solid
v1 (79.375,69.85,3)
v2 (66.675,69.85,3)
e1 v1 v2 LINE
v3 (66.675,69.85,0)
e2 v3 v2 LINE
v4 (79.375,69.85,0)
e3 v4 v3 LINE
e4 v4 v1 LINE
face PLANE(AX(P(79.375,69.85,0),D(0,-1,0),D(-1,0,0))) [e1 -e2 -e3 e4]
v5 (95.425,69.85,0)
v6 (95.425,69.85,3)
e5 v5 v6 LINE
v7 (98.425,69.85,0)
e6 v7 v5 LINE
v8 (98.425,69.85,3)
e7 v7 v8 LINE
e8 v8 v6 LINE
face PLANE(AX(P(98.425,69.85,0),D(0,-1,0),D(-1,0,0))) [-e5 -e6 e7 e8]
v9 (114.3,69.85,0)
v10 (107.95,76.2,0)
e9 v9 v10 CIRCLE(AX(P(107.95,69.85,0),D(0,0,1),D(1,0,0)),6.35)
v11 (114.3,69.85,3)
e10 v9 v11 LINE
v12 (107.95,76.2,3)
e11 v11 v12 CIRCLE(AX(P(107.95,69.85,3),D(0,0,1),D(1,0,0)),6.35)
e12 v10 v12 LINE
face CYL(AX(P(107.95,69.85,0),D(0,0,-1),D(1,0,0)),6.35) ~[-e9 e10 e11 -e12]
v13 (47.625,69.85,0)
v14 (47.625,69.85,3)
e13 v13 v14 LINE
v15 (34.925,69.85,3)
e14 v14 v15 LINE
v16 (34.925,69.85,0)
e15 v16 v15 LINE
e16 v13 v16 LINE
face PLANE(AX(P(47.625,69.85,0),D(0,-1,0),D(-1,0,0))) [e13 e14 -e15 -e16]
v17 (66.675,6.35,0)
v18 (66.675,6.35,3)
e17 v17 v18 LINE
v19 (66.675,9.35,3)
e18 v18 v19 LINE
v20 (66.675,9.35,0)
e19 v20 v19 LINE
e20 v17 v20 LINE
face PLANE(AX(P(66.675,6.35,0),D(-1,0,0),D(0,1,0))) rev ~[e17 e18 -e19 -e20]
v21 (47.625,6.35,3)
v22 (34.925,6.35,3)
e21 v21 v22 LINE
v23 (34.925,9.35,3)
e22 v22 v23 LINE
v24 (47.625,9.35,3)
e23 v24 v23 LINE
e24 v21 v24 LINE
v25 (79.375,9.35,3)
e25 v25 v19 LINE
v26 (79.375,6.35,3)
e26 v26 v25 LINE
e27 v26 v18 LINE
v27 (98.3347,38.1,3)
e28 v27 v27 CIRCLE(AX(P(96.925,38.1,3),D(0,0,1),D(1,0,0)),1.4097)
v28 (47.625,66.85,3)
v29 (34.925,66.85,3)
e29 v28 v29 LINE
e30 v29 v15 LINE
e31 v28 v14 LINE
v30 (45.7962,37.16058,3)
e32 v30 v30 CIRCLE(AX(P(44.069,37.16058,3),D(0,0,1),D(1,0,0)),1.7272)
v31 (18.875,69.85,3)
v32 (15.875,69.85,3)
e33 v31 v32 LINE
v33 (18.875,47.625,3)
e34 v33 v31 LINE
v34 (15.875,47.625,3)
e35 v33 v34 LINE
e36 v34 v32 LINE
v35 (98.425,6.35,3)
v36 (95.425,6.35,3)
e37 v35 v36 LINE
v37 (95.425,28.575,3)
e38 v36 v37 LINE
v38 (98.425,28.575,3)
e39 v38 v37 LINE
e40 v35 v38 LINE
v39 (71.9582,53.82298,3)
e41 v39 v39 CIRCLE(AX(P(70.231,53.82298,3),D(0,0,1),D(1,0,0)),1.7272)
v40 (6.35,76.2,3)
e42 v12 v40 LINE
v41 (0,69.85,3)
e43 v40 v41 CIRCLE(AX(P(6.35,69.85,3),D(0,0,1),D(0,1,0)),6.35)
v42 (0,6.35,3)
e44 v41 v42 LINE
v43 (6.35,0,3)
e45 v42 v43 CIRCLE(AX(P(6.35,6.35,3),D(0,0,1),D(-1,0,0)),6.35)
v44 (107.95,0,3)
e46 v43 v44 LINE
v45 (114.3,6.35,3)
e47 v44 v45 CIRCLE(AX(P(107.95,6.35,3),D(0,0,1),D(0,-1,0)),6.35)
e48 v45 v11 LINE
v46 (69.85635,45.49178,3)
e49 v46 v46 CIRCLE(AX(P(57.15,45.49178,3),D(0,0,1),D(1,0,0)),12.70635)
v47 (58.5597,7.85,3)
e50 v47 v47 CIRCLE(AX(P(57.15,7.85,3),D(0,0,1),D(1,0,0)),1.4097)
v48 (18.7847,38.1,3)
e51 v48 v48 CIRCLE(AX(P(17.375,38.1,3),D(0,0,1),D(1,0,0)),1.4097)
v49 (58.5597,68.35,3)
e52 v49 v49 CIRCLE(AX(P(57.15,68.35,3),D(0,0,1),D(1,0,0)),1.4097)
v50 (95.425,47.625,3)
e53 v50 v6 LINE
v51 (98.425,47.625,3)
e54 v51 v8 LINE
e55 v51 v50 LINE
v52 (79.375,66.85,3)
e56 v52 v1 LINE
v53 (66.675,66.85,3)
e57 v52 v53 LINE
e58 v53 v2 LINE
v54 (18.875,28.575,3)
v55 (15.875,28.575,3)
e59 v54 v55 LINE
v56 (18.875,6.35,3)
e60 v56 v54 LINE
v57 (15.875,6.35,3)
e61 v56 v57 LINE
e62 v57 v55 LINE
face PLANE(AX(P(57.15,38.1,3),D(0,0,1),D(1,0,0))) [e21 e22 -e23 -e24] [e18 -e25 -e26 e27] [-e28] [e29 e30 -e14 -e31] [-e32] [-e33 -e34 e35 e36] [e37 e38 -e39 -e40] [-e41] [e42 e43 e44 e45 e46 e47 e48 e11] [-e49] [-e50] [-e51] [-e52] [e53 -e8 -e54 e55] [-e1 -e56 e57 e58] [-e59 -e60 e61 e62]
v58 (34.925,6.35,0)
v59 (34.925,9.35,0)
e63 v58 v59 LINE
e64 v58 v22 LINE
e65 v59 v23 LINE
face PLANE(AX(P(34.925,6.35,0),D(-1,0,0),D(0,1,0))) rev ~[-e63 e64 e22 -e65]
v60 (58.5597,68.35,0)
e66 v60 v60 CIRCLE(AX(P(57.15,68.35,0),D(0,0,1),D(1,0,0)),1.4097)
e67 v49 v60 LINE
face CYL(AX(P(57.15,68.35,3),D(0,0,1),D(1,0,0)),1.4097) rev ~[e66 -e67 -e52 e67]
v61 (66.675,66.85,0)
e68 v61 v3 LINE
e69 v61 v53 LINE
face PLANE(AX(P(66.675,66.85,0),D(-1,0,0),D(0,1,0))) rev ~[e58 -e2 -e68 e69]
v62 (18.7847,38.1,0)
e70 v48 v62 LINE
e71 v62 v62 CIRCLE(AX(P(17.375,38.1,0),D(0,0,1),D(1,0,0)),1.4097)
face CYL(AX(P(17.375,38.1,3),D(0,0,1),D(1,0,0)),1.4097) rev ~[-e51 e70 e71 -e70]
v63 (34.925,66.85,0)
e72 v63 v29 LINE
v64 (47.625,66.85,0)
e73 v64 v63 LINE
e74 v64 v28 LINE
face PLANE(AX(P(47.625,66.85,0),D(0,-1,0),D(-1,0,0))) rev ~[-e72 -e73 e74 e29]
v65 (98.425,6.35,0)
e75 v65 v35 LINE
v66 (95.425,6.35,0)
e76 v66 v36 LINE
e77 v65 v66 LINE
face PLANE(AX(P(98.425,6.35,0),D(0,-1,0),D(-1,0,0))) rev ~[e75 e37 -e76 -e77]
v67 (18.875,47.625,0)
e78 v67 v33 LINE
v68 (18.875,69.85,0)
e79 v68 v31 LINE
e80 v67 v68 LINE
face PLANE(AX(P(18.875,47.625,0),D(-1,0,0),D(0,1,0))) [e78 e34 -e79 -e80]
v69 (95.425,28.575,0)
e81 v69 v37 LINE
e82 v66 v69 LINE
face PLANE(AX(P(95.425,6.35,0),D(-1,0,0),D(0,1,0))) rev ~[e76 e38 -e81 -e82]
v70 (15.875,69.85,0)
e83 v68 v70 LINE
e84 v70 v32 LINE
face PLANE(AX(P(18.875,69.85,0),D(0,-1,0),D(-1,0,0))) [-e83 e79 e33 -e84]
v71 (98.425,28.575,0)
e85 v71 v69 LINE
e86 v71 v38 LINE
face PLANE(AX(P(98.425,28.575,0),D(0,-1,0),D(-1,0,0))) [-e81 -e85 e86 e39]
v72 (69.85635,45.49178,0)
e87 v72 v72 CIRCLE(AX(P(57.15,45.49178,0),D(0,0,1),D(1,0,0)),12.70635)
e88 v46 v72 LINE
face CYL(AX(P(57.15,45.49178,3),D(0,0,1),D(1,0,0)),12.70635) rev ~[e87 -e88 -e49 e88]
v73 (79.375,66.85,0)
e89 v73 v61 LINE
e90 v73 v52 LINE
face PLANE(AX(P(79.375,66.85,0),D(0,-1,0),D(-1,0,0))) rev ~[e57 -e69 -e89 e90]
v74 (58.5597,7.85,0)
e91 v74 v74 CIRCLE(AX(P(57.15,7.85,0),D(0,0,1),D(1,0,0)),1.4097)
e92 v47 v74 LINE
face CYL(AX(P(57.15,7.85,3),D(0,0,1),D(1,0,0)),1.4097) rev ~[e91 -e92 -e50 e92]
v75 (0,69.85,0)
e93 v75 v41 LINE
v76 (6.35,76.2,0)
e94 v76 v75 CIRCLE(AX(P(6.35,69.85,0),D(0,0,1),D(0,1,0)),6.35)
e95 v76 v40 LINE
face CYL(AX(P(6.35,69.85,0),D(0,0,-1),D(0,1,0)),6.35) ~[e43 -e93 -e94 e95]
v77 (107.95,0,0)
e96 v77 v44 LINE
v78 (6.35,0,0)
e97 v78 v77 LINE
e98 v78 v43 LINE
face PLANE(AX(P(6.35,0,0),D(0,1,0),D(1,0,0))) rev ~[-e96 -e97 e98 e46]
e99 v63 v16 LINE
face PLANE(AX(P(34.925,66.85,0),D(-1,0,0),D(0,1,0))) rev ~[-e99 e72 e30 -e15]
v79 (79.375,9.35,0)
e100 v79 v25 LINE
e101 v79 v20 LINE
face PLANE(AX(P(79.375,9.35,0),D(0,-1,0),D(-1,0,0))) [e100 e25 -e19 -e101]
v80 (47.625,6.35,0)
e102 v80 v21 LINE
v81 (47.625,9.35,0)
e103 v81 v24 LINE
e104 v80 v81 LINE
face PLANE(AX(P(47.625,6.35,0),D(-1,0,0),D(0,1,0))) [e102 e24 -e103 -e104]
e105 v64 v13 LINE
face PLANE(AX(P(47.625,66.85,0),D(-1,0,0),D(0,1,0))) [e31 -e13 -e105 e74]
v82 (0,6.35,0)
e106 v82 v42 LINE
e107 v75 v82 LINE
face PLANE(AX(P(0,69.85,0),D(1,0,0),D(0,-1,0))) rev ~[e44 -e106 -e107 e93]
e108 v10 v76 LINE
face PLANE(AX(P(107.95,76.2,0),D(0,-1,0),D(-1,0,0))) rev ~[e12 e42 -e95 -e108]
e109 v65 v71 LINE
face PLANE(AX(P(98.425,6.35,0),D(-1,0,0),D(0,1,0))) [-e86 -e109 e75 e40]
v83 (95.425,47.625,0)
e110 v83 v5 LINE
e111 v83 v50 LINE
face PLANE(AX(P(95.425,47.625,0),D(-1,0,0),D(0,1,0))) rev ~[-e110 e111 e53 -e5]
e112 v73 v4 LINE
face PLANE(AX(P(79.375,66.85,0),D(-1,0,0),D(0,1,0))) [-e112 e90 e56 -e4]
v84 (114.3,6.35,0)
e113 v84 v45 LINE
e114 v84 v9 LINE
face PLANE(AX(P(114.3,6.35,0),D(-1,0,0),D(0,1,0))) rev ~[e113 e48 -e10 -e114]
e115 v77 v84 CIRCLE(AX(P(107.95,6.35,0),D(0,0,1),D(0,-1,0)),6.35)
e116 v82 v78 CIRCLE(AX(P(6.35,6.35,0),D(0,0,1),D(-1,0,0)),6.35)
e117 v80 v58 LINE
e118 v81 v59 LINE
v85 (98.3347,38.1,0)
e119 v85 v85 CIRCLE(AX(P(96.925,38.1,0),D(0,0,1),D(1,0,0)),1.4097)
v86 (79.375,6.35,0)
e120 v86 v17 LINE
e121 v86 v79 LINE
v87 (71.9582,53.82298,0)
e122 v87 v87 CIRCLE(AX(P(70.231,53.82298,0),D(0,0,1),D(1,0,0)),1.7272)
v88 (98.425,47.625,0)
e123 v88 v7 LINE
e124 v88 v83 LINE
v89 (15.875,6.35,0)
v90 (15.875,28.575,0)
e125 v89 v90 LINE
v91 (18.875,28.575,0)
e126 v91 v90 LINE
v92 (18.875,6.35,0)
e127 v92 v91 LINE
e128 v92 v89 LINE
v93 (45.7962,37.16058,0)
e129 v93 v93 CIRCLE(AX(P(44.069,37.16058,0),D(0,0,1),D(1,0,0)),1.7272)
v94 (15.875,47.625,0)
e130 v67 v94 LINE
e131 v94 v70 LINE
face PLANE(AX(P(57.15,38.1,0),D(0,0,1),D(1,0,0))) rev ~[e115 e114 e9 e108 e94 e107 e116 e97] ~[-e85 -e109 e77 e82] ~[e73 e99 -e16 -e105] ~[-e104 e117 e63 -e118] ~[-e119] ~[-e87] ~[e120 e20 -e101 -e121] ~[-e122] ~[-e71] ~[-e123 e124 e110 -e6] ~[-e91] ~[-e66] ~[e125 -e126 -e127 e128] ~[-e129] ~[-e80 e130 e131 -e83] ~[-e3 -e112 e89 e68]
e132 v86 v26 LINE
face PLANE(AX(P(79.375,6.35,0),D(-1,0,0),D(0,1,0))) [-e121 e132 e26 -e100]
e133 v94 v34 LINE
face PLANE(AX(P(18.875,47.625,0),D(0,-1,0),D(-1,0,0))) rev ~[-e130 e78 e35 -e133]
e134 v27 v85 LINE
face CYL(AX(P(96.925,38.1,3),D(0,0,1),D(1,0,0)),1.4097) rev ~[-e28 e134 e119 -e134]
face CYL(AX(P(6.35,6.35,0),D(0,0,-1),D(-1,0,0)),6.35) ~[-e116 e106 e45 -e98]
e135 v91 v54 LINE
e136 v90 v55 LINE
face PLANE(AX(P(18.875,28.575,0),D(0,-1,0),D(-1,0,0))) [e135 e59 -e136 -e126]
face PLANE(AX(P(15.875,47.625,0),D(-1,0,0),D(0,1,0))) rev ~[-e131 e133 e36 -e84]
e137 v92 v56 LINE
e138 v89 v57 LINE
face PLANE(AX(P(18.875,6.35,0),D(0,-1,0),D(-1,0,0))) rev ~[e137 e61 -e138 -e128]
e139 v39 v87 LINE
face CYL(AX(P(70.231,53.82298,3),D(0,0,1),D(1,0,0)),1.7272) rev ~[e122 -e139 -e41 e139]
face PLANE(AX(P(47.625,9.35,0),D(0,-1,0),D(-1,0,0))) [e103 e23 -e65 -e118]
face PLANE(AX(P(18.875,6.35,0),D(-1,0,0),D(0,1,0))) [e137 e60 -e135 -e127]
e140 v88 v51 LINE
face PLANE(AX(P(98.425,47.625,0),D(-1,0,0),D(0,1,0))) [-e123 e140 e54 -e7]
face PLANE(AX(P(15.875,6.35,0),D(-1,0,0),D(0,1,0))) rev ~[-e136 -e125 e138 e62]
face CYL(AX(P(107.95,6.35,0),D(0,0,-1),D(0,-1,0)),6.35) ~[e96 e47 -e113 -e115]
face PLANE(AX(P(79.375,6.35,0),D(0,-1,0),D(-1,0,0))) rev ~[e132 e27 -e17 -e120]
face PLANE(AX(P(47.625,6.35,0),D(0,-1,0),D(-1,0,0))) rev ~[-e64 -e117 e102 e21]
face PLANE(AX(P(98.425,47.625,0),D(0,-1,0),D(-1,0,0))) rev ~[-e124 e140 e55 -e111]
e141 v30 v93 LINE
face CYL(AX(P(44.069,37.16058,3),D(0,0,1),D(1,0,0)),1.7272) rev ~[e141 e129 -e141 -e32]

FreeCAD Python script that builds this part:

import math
import FreeCAD as App
import Part
import Sketcher
from FreeCAD import Vector
Q = App.Units.Quantity

doc = App.newDocument("Part")
body = doc.addObject("PartDesign::Body", "Body")

# Sketch on XY plane
sketch1 = body.newObject("Sketcher::SketchObject", "Sketch")
sketch1.AttachmentSupport = (doc.getObject("XY_Plane"), [""])
sketch1.MapMode = "FlatFace"
sketch1.addGeometry(Part.LineSegment(Vector(6, 0, 0), Vector(108, 0, 0)), False)
sketch1.addGeometry(Part.ArcOfCircle(Part.Circle(Vector(108, 6, 0), Vector(0, 0, 1), 6), math.radians(-90), math.radians(0)), False)
sketch1.addGeometry(Part.LineSegment(Vector(114, 6, 0), Vector(114, 70, 0)), False)
sketch1.addGeometry(Part.ArcOfCircle(Part.Circle(Vector(108, 70, 0), Vector(0, 0, 1), 6), math.radians(0), math.radians(90)), False)
sketch1.addGeometry(Part.LineSegment(Vector(108, 76, 0), Vector(6, 76, 0)), False)
sketch1.addGeometry(Part.ArcOfCircle(Part.Circle(Vector(6, 70, 0), Vector(0, 0, 1), 6), math.radians(90), math.radians(180)), False)
sketch1.addGeometry(Part.LineSegment(Vector(0, 70, 0), Vector(0, 6, 0)), False)
sketch1.addGeometry(Part.ArcOfCircle(Part.Circle(Vector(6, 6, 0), Vector(0, 0, 1), 6), math.radians(180), math.radians(270)), False)
sketch1.addConstraint(Sketcher.Constraint("Tangent", 0, 2, 1, 1))
sketch1.addConstraint(Sketcher.Constraint("Tangent", 1, 2, 2, 1))
sketch1.addConstraint(Sketcher.Constraint("Tangent", 2, 2, 3, 1))
sketch1.addConstraint(Sketcher.Constraint("Tangent", 3, 2, 4, 1))
sketch1.addConstraint(Sketcher.Constraint("Tangent", 4, 2, 5, 1))
sketch1.addConstraint(Sketcher.Constraint("Tangent", 5, 2, 6, 1))
sketch1.addConstraint(Sketcher.Constraint("Tangent", 6, 2, 7, 1))
sketch1.addConstraint(Sketcher.Constraint("Tangent", 7, 2, 0, 1))
sketch1.addConstraint(Sketcher.Constraint("Horizontal", 0))
sketch1.addConstraint(Sketcher.Constraint("Vertical", 2))
sketch1.addConstraint(Sketcher.Constraint("Horizontal", 4))
sketch1.addConstraint(Sketcher.Constraint("Vertical", 6))
sketch1.addConstraint(Sketcher.Constraint("Equal", 1, 3))
sketch1.addConstraint(Sketcher.Constraint("Equal", 3, 5))
sketch1.addConstraint(Sketcher.Constraint("Equal", 5, 7))
sketch1.addConstraint(Sketcher.Constraint("PointOnObject", 0, 2, -1))
sketch1.addConstraint(Sketcher.Constraint("PointOnObject", 5, 2, -2))
sketch1.addConstraint(Sketcher.Constraint("DistanceX", 0, 1, 0, 2, Q("4 in")))
sketch1.addConstraint(Sketcher.Constraint("Radius", 1, Q("0.25 in")))
sketch1.addConstraint(Sketcher.Constraint("DistanceY", 2, 1, 2, 2, Q("2.5 in")))
pad1 = body.newObject("PartDesign::Pad", "Pad")
pad1.Profile = sketch1
pad1.Length = 3

# Sketch on XY plane
sketch2 = body.newObject("Sketcher::SketchObject", "Sketch001")
sketch2.AttachmentSupport = (doc.getObject("XY_Plane"), [""])
sketch2.MapMode = "FlatFace"
sketch2.addGeometry(Part.LineSegment(Vector(79.4, 69.8, 0), Vector(79.4, 66.8, 0)), False)
sketch2.addGeometry(Part.LineSegment(Vector(79.4, 66.8, 0), Vector(66.7, 66.8, 0)), False)
sketch2.addGeometry(Part.LineSegment(Vector(66.7, 66.8, 0), Vector(66.7, 69.8, 0)), False)
sketch2.addGeometry(Part.LineSegment(Vector(66.7, 69.8, 0), Vector(79.4, 69.8, 0)), False)
sketch2.addConstraint(Sketcher.Constraint("Coincident", 0, 2, 1, 1))
sketch2.addConstraint(Sketcher.Constraint("Coincident", 1, 2, 2, 1))
sketch2.addConstraint(Sketcher.Constraint("Coincident", 2, 2, 3, 1))
sketch2.addConstraint(Sketcher.Constraint("Coincident", 3, 2, 0, 1))
sketch2.addConstraint(Sketcher.Constraint("Vertical", 0))
sketch2.addConstraint(Sketcher.Constraint("Horizontal", 1))
sketch2.addConstraint(Sketcher.Constraint("Vertical", 2))
sketch2.addConstraint(Sketcher.Constraint("Horizontal", 3))
sketch2.addConstraint(Sketcher.Constraint("DistanceX", 1, 2, 1, 1, Q("0.5 in")))
sketch2.addConstraint(Sketcher.Constraint("DistanceY", -1, 1, 2, 2, Q("2.75 in")))
sketch2.addConstraint(Sketcher.Constraint("DistanceX", -1, 1, 0, 2, Q("3.125 in")))
sketch2.addConstraint(Sketcher.Constraint("DistanceY", 0, 2, 0, 1, Q("3 mm")))
pocket1 = body.newObject("PartDesign::Pocket", "Pocket")
pocket1.Profile = sketch2
pocket1.Type = "UpToFirst"
pocket1.Reversed = True

# Sketch on XY plane
sketch3 = body.newObject("Sketcher::SketchObject", "Sketch002")
sketch3.AttachmentSupport = (doc.getObject("XY_Plane"), [""])
sketch3.MapMode = "FlatFace"
sketch3.addGeometry(Part.LineSegment(Vector(47.6, 69.8, 0), Vector(47.6, 66.8, 0)), False)
sketch3.addGeometry(Part.LineSegment(Vector(47.6, 66.8, 0), Vector(34.9, 66.8, 0)), False)
sketch3.addGeometry(Part.LineSegment(Vector(34.9, 66.8, 0), Vector(34.9, 69.8, 0)), False)
sketch3.addGeometry(Part.LineSegment(Vector(34.9, 69.8, 0), Vector(47.6, 69.8, 0)), False)
sketch3.addConstraint(Sketcher.Constraint("Coincident", 0, 2, 1, 1))
sketch3.addConstraint(Sketcher.Constraint("Coincident", 1, 2, 2, 1))
sketch3.addConstraint(Sketcher.Constraint("Coincident", 2, 2, 3, 1))
sketch3.addConstraint(Sketcher.Constraint("Coincident", 3, 2, 0, 1))
sketch3.addConstraint(Sketcher.Constraint("Vertical", 0))
sketch3.addConstraint(Sketcher.Constraint("Horizontal", 1))
sketch3.addConstraint(Sketcher.Constraint("Vertical", 2))
sketch3.addConstraint(Sketcher.Constraint("Horizontal", 3))
sketch3.addConstraint(Sketcher.Constraint("DistanceX", 1, 2, 1, 1, Q("0.5 in")))
sketch3.addConstraint(Sketcher.Constraint("DistanceY", -1, 1, 2, 2, Q("2.75 in")))
sketch3.addConstraint(Sketcher.Constraint("DistanceX", -1, 1, 0, 2, Q("1.875 in")))
sketch3.addConstraint(Sketcher.Constraint("DistanceY", 0, 2, 0, 1, Q("3 mm")))
pocket2 = body.newObject("PartDesign::Pocket", "Pocket001")
pocket2.Profile = sketch3
pocket2.Type = "UpToFirst"
pocket2.Reversed = True

# Sketch on XY plane
sketch4 = body.newObject("Sketcher::SketchObject", "Sketch003")
sketch4.AttachmentSupport = (doc.getObject("XY_Plane"), [""])
sketch4.MapMode = "FlatFace"
sketch4.addGeometry(Part.LineSegment(Vector(18.9, 69.8, 0), Vector(18.9, 47.6, 0)), False)
sketch4.addGeometry(Part.LineSegment(Vector(18.9, 47.6, 0), Vector(15.9, 47.6, 0)), False)
sketch4.addGeometry(Part.LineSegment(Vector(15.9, 47.6, 0), Vector(15.9, 69.8, 0)), False)
sketch4.addGeometry(Part.LineSegment(Vector(15.9, 69.8, 0), Vector(18.9, 69.8, 0)), False)
sketch4.addConstraint(Sketcher.Constraint("Coincident", 0, 2, 1, 1))
sketch4.addConstraint(Sketcher.Constraint("Coincident", 1, 2, 2, 1))
sketch4.addConstraint(Sketcher.Constraint("Coincident", 2, 2, 3, 1))
sketch4.addConstraint(Sketcher.Constraint("Coincident", 3, 2, 0, 1))
sketch4.addConstraint(Sketcher.Constraint("Vertical", 0))
sketch4.addConstraint(Sketcher.Constraint("Horizontal", 1))
sketch4.addConstraint(Sketcher.Constraint("Vertical", 2))
sketch4.addConstraint(Sketcher.Constraint("Horizontal", 3))
sketch4.addConstraint(Sketcher.Constraint("DistanceY", 0, 2, 0, 1, Q("0.875 in")))
sketch4.addConstraint(Sketcher.Constraint("DistanceY", -1, 1, 2, 2, Q("2.75 in")))
sketch4.addConstraint(Sketcher.Constraint("DistanceX", -1, 1, 1, 2, Q("0.625 in")))
sketch4.addConstraint(Sketcher.Constraint("DistanceX", 1, 2, 1, 1, Q("3 mm")))
pocket3 = body.newObject("PartDesign::Pocket", "Pocket002")
pocket3.Profile = sketch4
pocket3.Type = "UpToFirst"
pocket3.Reversed = True

# Sketch on XY plane
sketch5 = body.newObject("Sketcher::SketchObject", "Sketch004")
sketch5.AttachmentSupport = (doc.getObject("XY_Plane"), [""])
sketch5.MapMode = "FlatFace"
sketch5.addGeometry(Part.LineSegment(Vector(18.9, 28.6, 0), Vector(18.9, 6.3, 0)), False)
sketch5.addGeometry(Part.LineSegment(Vector(18.9, 6.3, 0), Vector(15.9, 6.3, 0)), False)
sketch5.addGeometry(Part.LineSegment(Vector(15.9, 6.3, 0), Vector(15.9, 28.6, 0)), False)
sketch5.addGeometry(Part.LineSegment(Vector(15.9, 28.6, 0), Vector(18.9, 28.6, 0)), False)
sketch5.addConstraint(Sketcher.Constraint("Coincident", 0, 2, 1, 1))
sketch5.addConstraint(Sketcher.Constraint("Coincident", 1, 2, 2, 1))
sketch5.addConstraint(Sketcher.Constraint("Coincident", 2, 2, 3, 1))
sketch5.addConstraint(Sketcher.Constraint("Coincident", 3, 2, 0, 1))
sketch5.addConstraint(Sketcher.Constraint("Vertical", 0))
sketch5.addConstraint(Sketcher.Constraint("Horizontal", 1))
sketch5.addConstraint(Sketcher.Constraint("Vertical", 2))
sketch5.addConstraint(Sketcher.Constraint("Horizontal", 3))
sketch5.addConstraint(Sketcher.Constraint("DistanceY", 0, 2, 0, 1, Q("0.875 in")))
sketch5.addConstraint(Sketcher.Constraint("DistanceY", -1, 1, 0, 2, Q("0.25 in")))
sketch5.addConstraint(Sketcher.Constraint("DistanceX", -1, 1, 1, 2, Q("0.625 in")))
sketch5.addConstraint(Sketcher.Constraint("DistanceX", 1, 2, 1, 1, Q("3 mm")))
pocket4 = body.newObject("PartDesign::Pocket", "Pocket003")
pocket4.Profile = sketch5
pocket4.Type = "UpToFirst"
pocket4.Reversed = True

# Sketch on XY plane
sketch6 = body.newObject("Sketcher::SketchObject", "Sketch005")
sketch6.AttachmentSupport = (doc.getObject("XY_Plane"), [""])
sketch6.MapMode = "FlatFace"
sketch6.addGeometry(Part.LineSegment(Vector(47.6, 9.3, 0), Vector(47.6, 6.3, 0)), False)
sketch6.addGeometry(Part.LineSegment(Vector(47.6, 6.3, 0), Vector(34.9, 6.3, 0)), False)
sketch6.addGeometry(Part.LineSegment(Vector(34.9, 6.3, 0), Vector(34.9, 9.3, 0)), False)
sketch6.addGeometry(Part.LineSegment(Vector(34.9, 9.3, 0), Vector(47.6, 9.3, 0)), False)
sketch6.addConstraint(Sketcher.Constraint("Coincident", 0, 2, 1, 1))
sketch6.addConstraint(Sketcher.Constraint("Coincident", 1, 2, 2, 1))
sketch6.addConstraint(Sketcher.Constraint("Coincident", 2, 2, 3, 1))
sketch6.addConstraint(Sketcher.Constraint("Coincident", 3, 2, 0, 1))
sketch6.addConstraint(Sketcher.Constraint("Vertical", 0))
sketch6.addConstraint(Sketcher.Constraint("Horizontal", 1))
sketch6.addConstraint(Sketcher.Constraint("Vertical", 2))
sketch6.addConstraint(Sketcher.Constraint("Horizontal", 3))
sketch6.addConstraint(Sketcher.Constraint("DistanceX", 1, 2, 1, 1, Q("0.5 in")))
sketch6.addConstraint(Sketcher.Constraint("DistanceY", -1, 1, 0, 2, Q("0.25 in")))
sketch6.addConstraint(Sketcher.Constraint("DistanceX", -1, 1, 0, 2, Q("1.875 in")))
sketch6.addConstraint(Sketcher.Constraint("DistanceY", 0, 2, 0, 1, Q("3 mm")))
pocket5 = body.newObject("PartDesign::Pocket", "Pocket004")
pocket5.Profile = sketch6
pocket5.Type = "UpToFirst"
pocket5.Reversed = True

# Sketch on XY plane
sketch7 = body.newObject("Sketcher::SketchObject", "Sketch006")
sketch7.AttachmentSupport = (doc.getObject("XY_Plane"), [""])
sketch7.MapMode = "FlatFace"
sketch7.addGeometry(Part.LineSegment(Vector(79.4, 9.3, 0), Vector(79.4, 6.3, 0)), False)
sketch7.addGeometry(Part.LineSegment(Vector(79.4, 6.3, 0), Vector(66.7, 6.3, 0)), False)
sketch7.addGeometry(Part.LineSegment(Vector(66.7, 6.3, 0), Vector(66.7, 9.3, 0)), False)
sketch7.addGeometry(Part.LineSegment(Vector(66.7, 9.3, 0), Vector(79.4, 9.3, 0)), False)
sketch7.addConstraint(Sketcher.Constraint("Coincident", 0, 2, 1, 1))
sketch7.addConstraint(Sketcher.Constraint("Coincident", 1, 2, 2, 1))
sketch7.addConstraint(Sketcher.Constraint("Coincident", 2, 2, 3, 1))
sketch7.addConstraint(Sketcher.Constraint("Coincident", 3, 2, 0, 1))
sketch7.addConstraint(Sketcher.Constraint("Vertical", 0))
sketch7.addConstraint(Sketcher.Constraint("Horizontal", 1))
sketch7.addConstraint(Sketcher.Constraint("Vertical", 2))
sketch7.addConstraint(Sketcher.Constraint("Horizontal", 3))
sketch7.addConstraint(Sketcher.Constraint("DistanceX", 1, 2, 1, 1, Q("0.5 in")))
sketch7.addConstraint(Sketcher.Constraint("DistanceY", -1, 1, 0, 2, Q("0.25 in")))
sketch7.addConstraint(Sketcher.Constraint("DistanceX", -1, 1, 0, 2, Q("3.125 in")))
sketch7.addConstraint(Sketcher.Constraint("DistanceY", 0, 2, 0, 1, Q("3 mm")))
pocket6 = body.newObject("PartDesign::Pocket", "Pocket005")
pocket6.Profile = sketch7
pocket6.Type = "UpToFirst"
pocket6.Reversed = True

# Sketch on XY plane
sketch8 = body.newObject("Sketcher::SketchObject", "Sketch007")
sketch8.AttachmentSupport = (doc.getObject("XY_Plane"), [""])
sketch8.MapMode = "FlatFace"
sketch8.addGeometry(Part.LineSegment(Vector(98.4, 28.6, 0), Vector(98.4, 6.3, 0)), False)
sketch8.addGeometry(Part.LineSegment(Vector(98.4, 6.3, 0), Vector(95.4, 6.3, 0)), False)
sketch8.addGeometry(Part.LineSegment(Vector(95.4, 6.3, 0), Vector(95.4, 28.6, 0)), False)
sketch8.addGeometry(Part.LineSegment(Vector(95.4, 28.6, 0), Vector(98.4, 28.6, 0)), False)
sketch8.addConstraint(Sketcher.Constraint("Coincident", 0, 2, 1, 1))
sketch8.addConstraint(Sketcher.Constraint("Coincident", 1, 2, 2, 1))
sketch8.addConstraint(Sketcher.Constraint("Coincident", 2, 2, 3, 1))
sketch8.addConstraint(Sketcher.Constraint("Coincident", 3, 2, 0, 1))
sketch8.addConstraint(Sketcher.Constraint("Vertical", 0))
sketch8.addConstraint(Sketcher.Constraint("Horizontal", 1))
sketch8.addConstraint(Sketcher.Constraint("Vertical", 2))
sketch8.addConstraint(Sketcher.Constraint("Horizontal", 3))
sketch8.addConstraint(Sketcher.Constraint("DistanceY", 0, 2, 0, 1, Q("0.875 in")))
sketch8.addConstraint(Sketcher.Constraint("DistanceY", -1, 1, 0, 2, Q("0.25 in")))
sketch8.addConstraint(Sketcher.Constraint("DistanceX", -1, 1, 0, 2, Q("3.875 in")))
sketch8.addConstraint(Sketcher.Constraint("DistanceX", 1, 2, 1, 1, Q("3 mm")))
pocket7 = body.newObject("PartDesign::Pocket", "Pocket006")
pocket7.Profile = sketch8
pocket7.Type = "UpToFirst"
pocket7.Reversed = True

# Sketch on XY plane
sketch9 = body.newObject("Sketcher::SketchObject", "Sketch008")
sketch9.AttachmentSupport = (doc.getObject("XY_Plane"), [""])
sketch9.MapMode = "FlatFace"
sketch9.addGeometry(Part.LineSegment(Vector(98.4, 69.8, 0), Vector(98.4, 47.6, 0)), False)
sketch9.addGeometry(Part.LineSegment(Vector(98.4, 47.6, 0), Vector(95.4, 47.6, 0)), False)
sketch9.addGeometry(Part.LineSegment(Vector(95.4, 47.6, 0), Vector(95.4, 69.8, 0)), False)
sketch9.addGeometry(Part.LineSegment(Vector(95.4, 69.8, 0), Vector(98.4, 69.8, 0)), False)
sketch9.addConstraint(Sketcher.Constraint("Coincident", 0, 2, 1, 1))
sketch9.addConstraint(Sketcher.Constraint("Coincident", 1, 2, 2, 1))
sketch9.addConstraint(Sketcher.Constraint("Coincident", 2, 2, 3, 1))
sketch9.addConstraint(Sketcher.Constraint("Coincident", 3, 2, 0, 1))
sketch9.addConstraint(Sketcher.Constraint("Vertical", 0))
sketch9.addConstraint(Sketcher.Constraint("Horizontal", 1))
sketch9.addConstraint(Sketcher.Constraint("Vertical", 2))
sketch9.addConstraint(Sketcher.Constraint("Horizontal", 3))
sketch9.addConstraint(Sketcher.Constraint("DistanceY", 0, 2, 0, 1, Q("0.875 in")))
sketch9.addConstraint(Sketcher.Constraint("DistanceY", -1, 1, 2, 2, Q("2.75 in")))
sketch9.addConstraint(Sketcher.Constraint("DistanceX", -1, 1, 0, 2, Q("3.875 in")))
sketch9.addConstraint(Sketcher.Constraint("DistanceX", 1, 2, 1, 1, Q("3 mm")))
pocket8 = body.newObject("PartDesign::Pocket", "Pocket007")
pocket8.Profile = sketch9
pocket8.Type = "UpToFirst"
pocket8.Reversed = True

# Sketch on XY plane
sketch10 = body.newObject("Sketcher::SketchObject", "Sketch009")
sketch10.AttachmentSupport = (doc.getObject("XY_Plane"), [""])
sketch10.MapMode = "FlatFace"
sketch10.AttachmentOffset = App.Placement(Vector(0, 0, 3), App.Rotation())
sketch10.addGeometry(Part.Circle(Vector(70.2, 53.8, 0), Vector(0, 0, 1), 1.7), False)
sketch10.addConstraint(Sketcher.Constraint("Diameter", 0, Q("0.136 in")))
sketch10.addConstraint(Sketcher.Constraint("DistanceX", -1, 1, 0, 3, Q("2.765 in")))
sketch10.addConstraint(Sketcher.Constraint("DistanceY", -1, 1, 0, 3, Q("53.82298 mm")))
pocket9 = body.newObject("PartDesign::Pocket", "Pocket008")
pocket9.Profile = sketch10
pocket9.Type = "UpToFirst"

# Sketch on XY plane
sketch11 = body.newObject("Sketcher::SketchObject", "Sketch010")
sketch11.AttachmentSupport = (doc.getObject("XY_Plane"), [""])
sketch11.MapMode = "FlatFace"
sketch11.AttachmentOffset = App.Placement(Vector(0, 0, 3), App.Rotation())
sketch11.addGeometry(Part.Circle(Vector(44.1, 37.2, 0), Vector(0, 0, 1), 1.7), False)
sketch11.addConstraint(Sketcher.Constraint("Diameter", 0, Q("0.136 in")))
sketch11.addConstraint(Sketcher.Constraint("DistanceX", -1, 1, 0, 3, Q("1.735 in")))
sketch11.addConstraint(Sketcher.Constraint("DistanceY", -1, 1, 0, 3, Q("37.16058 mm")))
pocket10 = body.newObject("PartDesign::Pocket", "Pocket009")
pocket10.Profile = sketch11
pocket10.Type = "UpToFirst"

# Sketch on XY plane
sketch12 = body.newObject("Sketcher::SketchObject", "Sketch011")
sketch12.AttachmentSupport = (doc.getObject("XY_Plane"), [""])
sketch12.MapMode = "FlatFace"
sketch12.AttachmentOffset = App.Placement(Vector(0, 0, 3), App.Rotation())
sketch12.addGeometry(Part.Circle(Vector(57, 45, 0), Vector(0, 0, 1), 13), False)
sketch12.addConstraint(Sketcher.Constraint("Diameter", 0, Q("1.0005 in")))
sketch12.addConstraint(Sketcher.Constraint("DistanceX", -1, 1, 0, 3, Q("2.25 in")))
sketch12.addConstraint(Sketcher.Constraint("DistanceY", -1, 1, 0, 3, Q("45.49178 mm")))
pocket11 = body.newObject("PartDesign::Pocket", "Pocket010")
pocket11.Profile = sketch12
pocket11.Type = "UpToFirst"

# Sketch on XY plane
sketch13 = body.newObject("Sketcher::SketchObject", "Sketch012")
sketch13.AttachmentSupport = (doc.getObject("XY_Plane"), [""])
sketch13.MapMode = "FlatFace"
sketch13.AttachmentOffset = App.Placement(Vector(0, 0, 3), App.Rotation())
sketch13.addGeometry(Part.Circle(Vector(57.1, 68.3, 0), Vector(0, 0, 1), 1.4), False)
sketch13.addConstraint(Sketcher.Constraint("Diameter", 0, Q("0.111 in")))
sketch13.addConstraint(Sketcher.Constraint("DistanceX", -1, 1, 0, 3, Q("2.25 in")))
sketch13.addConstraint(Sketcher.Constraint("DistanceY", -1, 1, 0, 3, Q("68.35 mm")))
pocket12 = body.newObject("PartDesign::Pocket", "Pocket011")
pocket12.Profile = sketch13
pocket12.Type = "UpToFirst"

# Sketch on XY plane
sketch14 = body.newObject("Sketcher::SketchObject", "Sketch013")
sketch14.AttachmentSupport = (doc.getObject("XY_Plane"), [""])
sketch14.MapMode = "FlatFace"
sketch14.AttachmentOffset = App.Placement(Vector(0, 0, 3), App.Rotation())
sketch14.addGeometry(Part.Circle(Vector(96.9, 38.1, 0), Vector(0, 0, 1), 1.4), False)
sketch14.addConstraint(Sketcher.Constraint("Diameter", 0, Q("0.111 in")))
sketch14.addConstraint(Sketcher.Constraint("DistanceY", -1, 1, 0, 3, Q("1.5 in")))
sketch14.addConstraint(Sketcher.Constraint("DistanceX", -1, 1, 0, 3, Q("96.925 mm")))
pocket13 = body.newObject("PartDesign::Pocket", "Pocket012")
pocket13.Profile = sketch14
pocket13.Type = "UpToFirst"

# Sketch on XY plane
sketch15 = body.newObject("Sketcher::SketchObject", "Sketch014")
sketch15.AttachmentSupport = (doc.getObject("XY_Plane"), [""])
sketch15.MapMode = "FlatFace"
sketch15.AttachmentOffset = App.Placement(Vector(0, 0, 3), App.Rotation())
sketch15.addGeometry(Part.Circle(Vector(57.1, 7.8, 0), Vector(0, 0, 1), 1.4), False)
sketch15.addConstraint(Sketcher.Constraint("Diameter", 0, Q("0.111 in")))
sketch15.addConstraint(Sketcher.Constraint("DistanceX", -1, 1, 0, 3, Q("2.25 in")))
sketch15.addConstraint(Sketcher.Constraint("DistanceY", -1, 1, 0, 3, Q("7.85 mm")))
pocket14 = body.newObject("PartDesign::Pocket", "Pocket013")
pocket14.Profile = sketch15
pocket14.Type = "UpToFirst"

# Sketch on XY plane
sketch16 = body.newObject("Sketcher::SketchObject", "Sketch015")
sketch16.AttachmentSupport = (doc.getObject("XY_Plane"), [""])
sketch16.MapMode = "FlatFace"
sketch16.AttachmentOffset = App.Placement(Vector(0, 0, 3), App.Rotation())
sketch16.addGeometry(Part.Circle(Vector(17.4, 38.1, 0), Vector(0, 0, 1), 1.4), False)
sketch16.addConstraint(Sketcher.Constraint("Diameter", 0, Q("0.111 in")))
sketch16.addConstraint(Sketcher.Constraint("DistanceY", -1, 1, 0, 3, Q("1.5 in")))
sketch16.addConstraint(Sketcher.Constraint("DistanceX", -1, 1, 0, 3, Q("17.375 mm")))
pocket15 = body.newObject("PartDesign::Pocket", "Pocket014")
pocket15.Profile = sketch16
pocket15.Type = "UpToFirst"

doc.recompute()
